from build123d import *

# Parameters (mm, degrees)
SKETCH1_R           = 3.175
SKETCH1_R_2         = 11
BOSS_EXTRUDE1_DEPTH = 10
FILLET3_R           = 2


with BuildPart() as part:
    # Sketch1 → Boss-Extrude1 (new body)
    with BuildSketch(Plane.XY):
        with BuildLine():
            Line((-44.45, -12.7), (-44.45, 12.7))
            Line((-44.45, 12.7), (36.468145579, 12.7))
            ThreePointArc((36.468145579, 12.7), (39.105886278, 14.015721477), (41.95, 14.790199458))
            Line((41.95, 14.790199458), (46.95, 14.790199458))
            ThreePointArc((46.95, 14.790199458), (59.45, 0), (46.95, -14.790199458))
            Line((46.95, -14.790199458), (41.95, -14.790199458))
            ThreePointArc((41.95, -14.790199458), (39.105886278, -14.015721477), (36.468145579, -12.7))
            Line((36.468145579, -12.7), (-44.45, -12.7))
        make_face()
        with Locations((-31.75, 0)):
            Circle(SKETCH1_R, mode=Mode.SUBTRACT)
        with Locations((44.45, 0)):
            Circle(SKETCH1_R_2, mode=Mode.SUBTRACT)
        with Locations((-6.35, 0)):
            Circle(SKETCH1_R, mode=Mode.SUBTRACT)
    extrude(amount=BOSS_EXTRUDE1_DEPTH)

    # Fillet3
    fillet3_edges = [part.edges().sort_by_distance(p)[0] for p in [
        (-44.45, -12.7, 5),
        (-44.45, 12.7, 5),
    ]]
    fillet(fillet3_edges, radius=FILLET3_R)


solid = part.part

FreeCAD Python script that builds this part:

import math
import FreeCAD as App
import Part
import Sketcher


def edges_at(feature, points):
    """Names of the edges that pass closest to the given points."""
    edges = feature.Shape.Edges
    near = lambda p: min(range(len(edges)), key=lambda i: edges[i].distToShape(Part.Vertex(*p))[0])
    return sorted({f"Edge{near(p) + 1}" for p in points})

doc = App.newDocument("Part")
body = doc.addObject("PartDesign::Body", "Body")

sketch1 = doc.addObject("Sketcher::SketchObject", "Sketch")
body.addObject(sketch1)
sketch1.AttachmentSupport = (doc.XY_Plane, [""])
sketch1.MapMode = "FlatFace"
sketch1.addGeometry(Part.LineSegment(App.Vector(-44.45, 12.7, 0), App.Vector(-44.45, -12.7, 0)), False)
sketch1.addGeometry(Part.LineSegment(App.Vector(-44.45, -12.7, 0), App.Vector(36.468146, -12.7, 0)), False)
sketch1.addGeometry(Part.ArcOfCircle(Part.Circle(App.Vector(44.45, 0, 0), App.Vector(0, 0, 1), 15), math.radians(-122.149052), math.radians(-99.594068)), False)
sketch1.addGeometry(Part.LineSegment(App.Vector(41.95, -14.790199, 0), App.Vector(46.95, -14.790199, 0)), False)
sketch1.addGeometry(Part.ArcOfCircle(Part.Circle(App.Vector(44.45, 0, 0), App.Vector(0, 0, 1), 15), math.radians(-80.405932), math.radians(80.405932)), False)
sketch1.addGeometry(Part.LineSegment(App.Vector(46.95, 14.790199, 0), App.Vector(41.95, 14.790199, 0)), False)
sketch1.addGeometry(Part.ArcOfCircle(Part.Circle(App.Vector(44.45, 0, 0), App.Vector(0, 0, 1), 15), math.radians(99.594068), math.radians(122.149052)), False)
sketch1.addGeometry(Part.LineSegment(App.Vector(36.468146, 12.7, 0), App.Vector(-44.45, 12.7, 0)), False)
sketch1.addGeometry(Part.Circle(App.Vector(44.45, 0, 0), App.Vector(0, 0, 1), 11), False)
sketch1.addGeometry(Part.Circle(App.Vector(-6.35, 0, 0), App.Vector(0, 0, 1), 3.175), False)
sketch1.addGeometry(Part.Circle(App.Vector(-31.75, 0, 0), App.Vector(0, 0, 1), 3.175), False)
sketch1.addConstraint(Sketcher.Constraint("Coincident", 0, 2, 1, 1))
sketch1.addConstraint(Sketcher.Constraint("Coincident", 1, 2, 2, 1))
sketch1.addConstraint(Sketcher.Constraint("Coincident", 2, 2, 3, 1))
sketch1.addConstraint(Sketcher.Constraint("Coincident", 3, 2, 4, 1))
sketch1.addConstraint(Sketcher.Constraint("Coincident", 4, 2, 5, 1))
sketch1.addConstraint(Sketcher.Constraint("Coincident", 5, 2, 6, 1))
sketch1.addConstraint(Sketcher.Constraint("Coincident", 6, 2, 7, 1))
sketch1.addConstraint(Sketcher.Constraint("Coincident", 7, 2, 0, 1))
sketch1.addConstraint(Sketcher.Constraint("Vertical", 0))
sketch1.addConstraint(Sketcher.Constraint("Horizontal", 1))
sketch1.addConstraint(Sketcher.Constraint("Horizontal", 3))
sketch1.addConstraint(Sketcher.Constraint("Horizontal", 5))
sketch1.addConstraint(Sketcher.Constraint("Horizontal", 7))
sketch1.addConstraint(Sketcher.Constraint("Coincident", 4, 3, 2, 3))
sketch1.addConstraint(Sketcher.Constraint("Coincident", 6, 3, 2, 3))
sketch1.addConstraint(Sketcher.Constraint("Coincident", 8, 3, 2, 3))
sketch1.addConstraint(Sketcher.Constraint("Equal", 2, 4))
sketch1.addConstraint(Sketcher.Constraint("Equal", 4, 6))
sketch1.addConstraint(Sketcher.Constraint("Equal", 9, 10))
sketch1.addConstraint(Sketcher.Constraint("Symmetric", 3, 2, 4, 2, -1))
sketch1.addConstraint(Sketcher.Constraint("PointOnObject", 9, 3, -1))
sketch1.addConstraint(Sketcher.Constraint("PointOnObject", 10, 3, -1))
sketch1.addConstraint(Sketcher.Constraint("Vertical", 1, 2, 6, 2))
sketch1.addConstraint(Sketcher.Constraint("Diameter", 8, 22.0))
sketch1.addConstraint(Sketcher.Constraint("Radius", 2, 15.0))
sketch1.addConstraint(Sketcher.Constraint("Diameter", 9, 6.35))
sketch1.addConstraint(Sketcher.Constraint("DistanceX", 3, 1, 3, 2, 5.0))
sketch1.addConstraint(Sketcher.Constraint("DistanceY", 0, 2, 0, 1, 25.4))
sketch1.addConstraint(Sketcher.Constraint("DistanceX", 9, 3, 4, 3, 50.8))
sketch1.addConstraint(Sketcher.Constraint("DistanceX", 10, 3, 9, 3, 25.4))
sketch1.addConstraint(Sketcher.Constraint("DistanceX", 0, 2, 10, 3, 12.7))
sketch1.addConstraint(Sketcher.Constraint("DistanceX", -1, 1, 2, 3, 44.45))
pad1 = doc.addObject("PartDesign::Pad", "Pad")
body.addObject(pad1)
pad1.Profile = sketch1
pad1.Length = 10
doc.recompute()

fillet = doc.addObject("PartDesign::Fillet", "Fillet")
body.addObject(fillet)
fillet.Base = (pad1, edges_at(pad1, [(-44.45, -12.7, 5), (-44.45, 12.7, 5)]))
fillet.Radius = 2

doc.recompute()
